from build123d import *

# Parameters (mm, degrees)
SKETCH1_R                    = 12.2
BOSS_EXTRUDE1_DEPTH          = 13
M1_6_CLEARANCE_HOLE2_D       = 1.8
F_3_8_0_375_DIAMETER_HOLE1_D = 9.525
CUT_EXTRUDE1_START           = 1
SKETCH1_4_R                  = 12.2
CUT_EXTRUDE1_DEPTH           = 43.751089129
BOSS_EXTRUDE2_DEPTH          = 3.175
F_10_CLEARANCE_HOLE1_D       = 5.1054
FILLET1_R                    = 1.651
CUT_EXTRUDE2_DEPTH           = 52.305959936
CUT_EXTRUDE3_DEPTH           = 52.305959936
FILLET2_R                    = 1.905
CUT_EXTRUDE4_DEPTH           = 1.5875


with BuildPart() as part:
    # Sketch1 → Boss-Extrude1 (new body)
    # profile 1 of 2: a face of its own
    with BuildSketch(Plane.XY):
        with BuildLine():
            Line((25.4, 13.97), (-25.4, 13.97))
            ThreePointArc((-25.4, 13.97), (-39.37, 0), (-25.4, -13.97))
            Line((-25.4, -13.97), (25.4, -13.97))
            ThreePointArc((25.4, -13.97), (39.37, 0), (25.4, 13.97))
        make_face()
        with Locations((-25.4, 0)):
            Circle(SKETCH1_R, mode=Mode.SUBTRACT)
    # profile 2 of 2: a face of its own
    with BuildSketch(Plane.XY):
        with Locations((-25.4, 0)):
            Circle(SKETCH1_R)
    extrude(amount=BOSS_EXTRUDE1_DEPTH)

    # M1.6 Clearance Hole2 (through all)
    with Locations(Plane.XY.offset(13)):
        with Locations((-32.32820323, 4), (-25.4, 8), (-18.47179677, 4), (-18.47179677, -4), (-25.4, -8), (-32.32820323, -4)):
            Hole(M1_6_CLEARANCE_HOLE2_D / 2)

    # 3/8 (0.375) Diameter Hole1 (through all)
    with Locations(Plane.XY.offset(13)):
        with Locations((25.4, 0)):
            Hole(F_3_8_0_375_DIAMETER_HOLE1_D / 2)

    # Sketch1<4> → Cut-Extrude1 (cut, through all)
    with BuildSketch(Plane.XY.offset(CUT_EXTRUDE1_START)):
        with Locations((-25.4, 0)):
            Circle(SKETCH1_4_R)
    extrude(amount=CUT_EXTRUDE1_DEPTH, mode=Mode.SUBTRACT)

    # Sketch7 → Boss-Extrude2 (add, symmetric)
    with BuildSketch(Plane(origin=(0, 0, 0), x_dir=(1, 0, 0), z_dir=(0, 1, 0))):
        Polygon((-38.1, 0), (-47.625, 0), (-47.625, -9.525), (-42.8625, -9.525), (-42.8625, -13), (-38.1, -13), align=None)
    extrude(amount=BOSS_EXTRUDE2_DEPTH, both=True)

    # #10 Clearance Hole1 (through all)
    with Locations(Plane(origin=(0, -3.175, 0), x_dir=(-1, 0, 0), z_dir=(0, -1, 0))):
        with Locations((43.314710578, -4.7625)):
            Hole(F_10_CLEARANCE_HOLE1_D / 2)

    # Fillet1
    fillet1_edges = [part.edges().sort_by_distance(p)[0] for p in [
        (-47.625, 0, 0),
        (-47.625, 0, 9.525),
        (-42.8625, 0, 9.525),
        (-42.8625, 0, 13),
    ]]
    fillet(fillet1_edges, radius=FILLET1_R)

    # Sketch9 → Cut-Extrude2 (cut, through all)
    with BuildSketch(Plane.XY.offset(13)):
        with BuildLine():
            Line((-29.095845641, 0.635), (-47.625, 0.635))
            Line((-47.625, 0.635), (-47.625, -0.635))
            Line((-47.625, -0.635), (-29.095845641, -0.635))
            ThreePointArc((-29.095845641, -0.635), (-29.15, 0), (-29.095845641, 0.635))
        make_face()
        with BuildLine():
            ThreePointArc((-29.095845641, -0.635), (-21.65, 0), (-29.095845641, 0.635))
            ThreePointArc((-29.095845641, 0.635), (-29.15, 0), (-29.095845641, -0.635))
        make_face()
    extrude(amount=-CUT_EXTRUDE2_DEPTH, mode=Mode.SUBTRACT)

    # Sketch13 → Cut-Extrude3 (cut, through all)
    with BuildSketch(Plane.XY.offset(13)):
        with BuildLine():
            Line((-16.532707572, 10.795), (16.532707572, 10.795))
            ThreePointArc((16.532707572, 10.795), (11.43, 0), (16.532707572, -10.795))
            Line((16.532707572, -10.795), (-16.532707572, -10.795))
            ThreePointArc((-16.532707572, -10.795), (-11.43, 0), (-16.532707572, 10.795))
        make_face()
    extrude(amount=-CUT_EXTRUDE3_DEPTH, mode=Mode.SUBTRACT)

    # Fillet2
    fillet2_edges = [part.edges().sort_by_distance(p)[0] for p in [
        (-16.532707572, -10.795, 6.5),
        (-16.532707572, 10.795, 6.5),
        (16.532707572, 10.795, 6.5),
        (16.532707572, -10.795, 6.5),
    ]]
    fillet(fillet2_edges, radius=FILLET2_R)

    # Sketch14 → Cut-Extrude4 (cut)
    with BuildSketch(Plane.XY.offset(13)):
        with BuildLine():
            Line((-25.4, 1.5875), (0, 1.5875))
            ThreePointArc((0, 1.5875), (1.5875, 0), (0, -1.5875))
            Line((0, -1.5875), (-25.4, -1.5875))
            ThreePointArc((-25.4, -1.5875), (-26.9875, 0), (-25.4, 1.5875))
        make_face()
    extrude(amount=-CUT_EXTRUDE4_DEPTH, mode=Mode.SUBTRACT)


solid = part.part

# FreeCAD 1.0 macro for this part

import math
import FreeCAD as App
import Part
import Sketcher

V = App.Vector
Q = App.Units.Quantity


def edges_at(feature, points):
    """Names of the edges that pass closest to the given points."""
    edges = feature.Shape.Edges
    near = lambda p: min(range(len(edges)), key=lambda i: edges[i].distToShape(Part.Vertex(*p))[0])
    return sorted({f"Edge{near(p) + 1}" for p in points})


def add_polygon(sketch, points):
    """Adds a closed chain of lines whose ends are joined by coincident constraints."""
    first, n = sketch.GeometryCount, len(points)
    for a, b in zip(points, points[1:] + points[:1]):
        sketch.addGeometry(Part.LineSegment(App.Vector(*a, 0), App.Vector(*b, 0)), False)
    for i in range(n):
        sketch.addConstraint(Sketcher.Constraint("Coincident", first + i, 2, first + (i + 1) % n, 1))

doc = App.newDocument("Part")
body = doc.addObject("PartDesign::Body", "Body")

sketch1 = body.newObject("Sketcher::SketchObject", "Sketch")
sketch1.AttachmentSupport = (doc.getObject("XY_Plane"), [""])
sketch1.MapMode = "FlatFace"
sketch1.addGeometry([
    Part.LineSegment(V(25, 14, 0), V(-25, 14, 0)),
    Part.ArcOfCircle(Part.Circle(V(-25, 0, 0), V(0, 0, 1), 14), math.radians(90), math.radians(270)),
    Part.LineSegment(V(-25, -14, 0), V(25, -14, 0)),
    Part.ArcOfCircle(Part.Circle(V(25, 0, 0), V(0, 0, 1), 14), math.radians(-90), math.radians(90)),
], False)
sketch1.addConstraint([
    Sketcher.Constraint("Tangent", 0, 2, 1, 1),
    Sketcher.Constraint("Tangent", 1, 2, 2, 1),
    Sketcher.Constraint("Tangent", 2, 2, 3, 1),
    Sketcher.Constraint("Tangent", 3, 2, 0, 1),
    Sketcher.Constraint("Horizontal", 0),
    Sketcher.Constraint("Horizontal", 2),
    Sketcher.Constraint("Symmetric", 1, 3, 3, 3, -1, 1),
    Sketcher.Constraint("DistanceX", 0, 2, 0, 1, Q("2 in")),
    Sketcher.Constraint("Radius", 1, Q("0.55 in")),
])
pad1 = body.newObject("PartDesign::Pad", "Pad")
pad1.Profile = sketch1
pad1.Length = 13

sketch2 = body.newObject("Sketcher::SketchObject", "Sketch001")
sketch2.AttachmentSupport = (doc.getObject("XY_Plane"), [""])
sketch2.MapMode = "FlatFace"
sketch2.AttachmentOffset = App.Placement(V(0, 0, 13), App.Rotation())
sketch2.addGeometry([
    Part.Circle(V(-32.3, 4, 0), V(0, 0, 1), 0.9),
    Part.Circle(V(-25.4, 8, 0), V(0, 0, 1), 0.9),
    Part.Circle(V(-18.5, 4, 0), V(0, 0, 1), 0.9),
    Part.Circle(V(-18.5, -4, 0), V(0, 0, 1), 0.9),
    Part.Circle(V(-25.4, -8, 0), V(0, 0, 1), 0.9),
    Part.Circle(V(-32.3, -4, 0), V(0, 0, 1), 0.9),
], False)
sketch2.addConstraint([
    Sketcher.Constraint("Equal", 0, 1),
    Sketcher.Constraint("Equal", 1, 2),
    Sketcher.Constraint("Equal", 2, 3),
    Sketcher.Constraint("Equal", 3, 4),
    Sketcher.Constraint("Equal", 4, 5),
    Sketcher.Constraint("Symmetric", 2, 3, 3, 3, -1),
    Sketcher.Constraint("Symmetric", 1, 3, 4, 3, -1),
    Sketcher.Constraint("Symmetric", 0, 3, 5, 3, -1),
    Sketcher.Constraint("Horizontal", 0, 3, 2, 3),
    Sketcher.Constraint("DistanceX", 1, 3, -1, 1, Q("1 in")),
    Sketcher.Constraint("Diameter", 0, Q("1.8 mm")),
    Sketcher.Constraint("DistanceY", -1, 1, 0, 3, Q("4 mm")),
    Sketcher.Constraint("DistanceY", -1, 1, 1, 3, Q("8 mm")),
    Sketcher.Constraint("DistanceX", 0, 3, -1, 1, Q("32.328203 mm")),
    Sketcher.Constraint("DistanceX", 2, 3, -1, 1, Q("18.471797 mm")),
])
doc.recompute()
hole = body.newObject("PartDesign::Hole", "Hole")
hole.Profile = sketch2
hole.ThreadType = "None"
hole.Diameter = 1.8
hole.DepthType = "ThroughAll"

sketch3 = body.newObject("Sketcher::SketchObject", "Sketch002")
sketch3.AttachmentSupport = (doc.getObject("XY_Plane"), [""])
sketch3.MapMode = "FlatFace"
sketch3.AttachmentOffset = App.Placement(V(0, 0, 13), App.Rotation())
sketch3.addGeometry(Part.Circle(V(25.4, 0, 0), V(0, 0, 1), 4.8), False)
sketch3.addConstraint([
    Sketcher.Constraint("PointOnObject", 0, 3, -1),
    Sketcher.Constraint("Diameter", 0, Q("0.375 in")),
    Sketcher.Constraint("DistanceX", -1, 1, 0, 3, Q("1 in")),
])
doc.recompute()
hole2 = body.newObject("PartDesign::Hole", "Hole001")
hole2.Profile = sketch3
hole2.ThreadType = "None"
hole2.Diameter = Q("0.375 in")
hole2.DepthType = "ThroughAll"

sketch4 = body.newObject("Sketcher::SketchObject", "Sketch003")
sketch4.AttachmentSupport = (doc.getObject("XY_Plane"), [""])
sketch4.MapMode = "FlatFace"
sketch4.AttachmentOffset = App.Placement(V(0, 0, 1), App.Rotation())
sketch4.addGeometry(Part.Circle(V(-25, 0, 0), V(0, 0, 1), 12), False)
sketch4.addConstraint([
    Sketcher.Constraint("PointOnObject", 0, 3, -1),
    Sketcher.Constraint("DistanceX", 0, 3, -1, 1, Q("1 in")),
    Sketcher.Constraint("Diameter", 0, Q("24.4 mm")),
])
pocket1 = body.newObject("PartDesign::Pocket", "Pocket")
pocket1.Profile = sketch4
pocket1.Type = "ThroughAll"
pocket1.Reversed = True

sketch5 = body.newObject("Sketcher::SketchObject", "Sketch004")
sketch5.AttachmentSupport = (doc.getObject("XZ_Plane"), [""])
sketch5.MapMode = "FlatFace"
add_polygon(sketch5, [(-38.1, 0), (-47.6, 0), (-47.6, 9.5), (-42.9, 9.5), (-42.9, 13), (-38.1, 13)])
sketch5.addConstraint([
    Sketcher.Constraint("Horizontal", 0),
    Sketcher.Constraint("Vertical", 1),
    Sketcher.Constraint("Horizontal", 2),
    Sketcher.Constraint("Vertical", 3),
    Sketcher.Constraint("Horizontal", 4),
    Sketcher.Constraint("Vertical", 5),
    Sketcher.Constraint("PointOnObject", 0, 2, -1),
    Sketcher.Constraint("Equal", 2, 4),
    Sketcher.Constraint("Equal", 0, 1),
    Sketcher.Constraint("DistanceX", 4, 2, -1, 1, Q("1.5 in")),
    Sketcher.Constraint("DistanceX", 0, 2, 0, 1, Q("0.375 in")),
    Sketcher.Constraint("DistanceY", 3, 1, 3, 2, Q("3.475 mm")),
])
pad2 = body.newObject("PartDesign::Pad", "Pad001")
pad2.Profile = sketch5
pad2.Length = Q("0.25 in")
pad2.Midplane = True

sketch6 = body.newObject("Sketcher::SketchObject", "Sketch005")
sketch6.AttachmentSupport = (doc.getObject("XZ_Plane"), [""])
sketch6.MapMode = "FlatFace"
sketch6.AttachmentOffset = App.Placement(V(0, 0, 0.125 * 25.4), App.Rotation())
sketch6.addGeometry(Part.Circle(V(-43.3, 4.8, 0), V(0, 0, 1), 2.6), False)
sketch6.addConstraint([
    Sketcher.Constraint("Diameter", 0, Q("0.201 in")),
    Sketcher.Constraint("DistanceY", -1, 1, 0, 3, Q("0.1875 in")),
    Sketcher.Constraint("DistanceX", 0, 3, -1, 1, Q("43.314711 mm")),
])
doc.recompute()
hole3 = body.newObject("PartDesign::Hole", "Hole002")
hole3.Profile = sketch6
hole3.ThreadType = "None"
hole3.Diameter = Q("0.201 in")
hole3.DepthType = "ThroughAll"
doc.recompute()

fillet = body.newObject("PartDesign::Fillet", "Fillet")
fillet.Base = (hole3, edges_at(hole3, [
    (-47.625, 0, 0),
    (-47.625, 0, 9.525),
    (-42.862, 0, 9.525),
    (-42.862, 0, 13),
]))
fillet.Radius = Q("0.065 in")

sketch7 = body.newObject("Sketcher::SketchObject", "Sketch006")
sketch7.AttachmentSupport = (doc.getObject("XY_Plane"), [""])
sketch7.MapMode = "FlatFace"
sketch7.AttachmentOffset = App.Placement(V(0, 0, 13), App.Rotation())
sketch7.addGeometry([
    Part.LineSegment(V(-29.1, 0.6, 0), V(-47.6, 0.6, 0)),
    Part.LineSegment(V(-47.6, 0.6, 0), V(-47.6, -0.6, 0)),
    Part.LineSegment(V(-47.6, -0.6, 0), V(-29.1, -0.6, 0)),
    Part.ArcOfCircle(Part.Circle(V(-25.4, 0, 0), V(0, 0, 1), 3.8), math.radians(-170), math.radians(170)),
], False)
sketch7.addConstraint([
    Sketcher.Constraint("Coincident", 0, 2, 1, 1),
    Sketcher.Constraint("Coincident", 1, 2, 2, 1),
    Sketcher.Constraint("Coincident", 2, 2, 3, 1),
    Sketcher.Constraint("Coincident", 3, 2, 0, 1),
    Sketcher.Constraint("Horizontal", 0),
    Sketcher.Constraint("Vertical", 1),
    Sketcher.Constraint("Horizontal", 2),
    Sketcher.Constraint("Symmetric", 2, 2, 3, 2, -1),
    Sketcher.Constraint("DistanceX", 3, 3, -1, 1, Q("1 in")),
    Sketcher.Constraint("DistanceY", 1, 2, 1, 1, Q("0.05 in")),
    Sketcher.Constraint("Radius", 3, Q("3.75 mm")),
    Sketcher.Constraint("DistanceX", 0, 2, -1, 1, Q("1.875 in")),
])
pocket2 = body.newObject("PartDesign::Pocket", "Pocket001")
pocket2.Profile = sketch7
pocket2.Type = "ThroughAll"

sketch8 = body.newObject("Sketcher::SketchObject", "Sketch007")
sketch8.AttachmentSupport = (doc.getObject("XY_Plane"), [""])
sketch8.MapMode = "FlatFace"
sketch8.AttachmentOffset = App.Placement(V(0, 0, 13), App.Rotation())
sketch8.addGeometry([
    Part.LineSegment(V(17, 11, 0), V(-17, 11, 0)),
    Part.ArcOfCircle(Part.Circle(V(-25, 0, 0), V(0, 0, 1), 14), math.radians(-51), math.radians(51)),
    Part.LineSegment(V(-17, -11, 0), V(17, -11, 0)),
    Part.ArcOfCircle(Part.Circle(V(25, 0, 0), V(0, 0, 1), 14), math.radians(129), math.radians(231)),
], False)
sketch8.addConstraint([
    Sketcher.Constraint("Coincident", 0, 2, 1, 2),
    Sketcher.Constraint("Coincident", 1, 1, 2, 1),
    Sketcher.Constraint("Coincident", 2, 2, 3, 2),
    Sketcher.Constraint("Coincident", 3, 1, 0, 1),
    Sketcher.Constraint("Horizontal", 0),
    Sketcher.Constraint("Horizontal", 2),
    Sketcher.Constraint("Equal", 1, 3),
    Sketcher.Constraint("Symmetric", 1, 3, 3, 3, -1, 1),
    Sketcher.Constraint("Symmetric", 0, 2, 1, 1, -1),
    Sketcher.Constraint("Radius", 1, Q("0.55 in")),
    Sketcher.Constraint("DistanceX", 1, 3, -1, 1, Q("1 in")),
    Sketcher.Constraint("DistanceY", 1, 1, 0, 2, Q("0.85 in")),
])
pocket3 = body.newObject("PartDesign::Pocket", "Pocket002")
pocket3.Profile = sketch8
pocket3.Type = "ThroughAll"
doc.recompute()

fillet2 = body.newObject("PartDesign::Fillet", "Fillet001")
fillet2.Base = (pocket3, edges_at(pocket3, [
    (-16.533, -10.795, 6.5),
    (-16.533, 10.795, 6.5),
    (16.533, 10.795, 6.5),
    (16.533, -10.795, 6.5),
]))
fillet2.Radius = Q("0.075 in")

sketch9 = body.newObject("Sketcher::SketchObject", "Sketch008")
sketch9.AttachmentSupport = (doc.getObject("XY_Plane"), [""])
sketch9.MapMode = "FlatFace"
sketch9.AttachmentOffset = App.Placement(V(0, 0, 13), App.Rotation())
sketch9.addGeometry([
    Part.LineSegment(V(0, 1.6, 0), V(-25.4, 1.6, 0)),
    Part.ArcOfCircle(Part.Circle(V(-25.4, 0, 0), V(0, 0, 1), 1.6), math.radians(90), math.radians(270)),
    Part.LineSegment(V(-25.4, -1.6, 0), V(0, -1.6, 0)),
    Part.ArcOfCircle(Part.Circle(V(0, 0, 0), V(0, 0, 1), 1.6), math.radians(-90), math.radians(90)),
], False)
sketch9.addConstraint([
    Sketcher.Constraint("Tangent", 0, 2, 1, 1),
    Sketcher.Constraint("Tangent", 1, 2, 2, 1),
    Sketcher.Constraint("Tangent", 2, 2, 3, 1),
    Sketcher.Constraint("Tangent", 3, 2, 0, 1),
    Sketcher.Constraint("Horizontal", 0),
    Sketcher.Constraint("Horizontal", 2),
    Sketcher.Constraint("Coincident", 3, 3, -1, 1),
    Sketcher.Constraint("DistanceX", 0, 2, 0, 1, Q("1 in")),
    Sketcher.Constraint("Radius", 1, Q("0.0625 in")),
])
pocket4 = body.newObject("PartDesign::Pocket", "Pocket003")
pocket4.Profile = sketch9
pocket4.Length = Q("0.0625 in")

doc.recompute()
